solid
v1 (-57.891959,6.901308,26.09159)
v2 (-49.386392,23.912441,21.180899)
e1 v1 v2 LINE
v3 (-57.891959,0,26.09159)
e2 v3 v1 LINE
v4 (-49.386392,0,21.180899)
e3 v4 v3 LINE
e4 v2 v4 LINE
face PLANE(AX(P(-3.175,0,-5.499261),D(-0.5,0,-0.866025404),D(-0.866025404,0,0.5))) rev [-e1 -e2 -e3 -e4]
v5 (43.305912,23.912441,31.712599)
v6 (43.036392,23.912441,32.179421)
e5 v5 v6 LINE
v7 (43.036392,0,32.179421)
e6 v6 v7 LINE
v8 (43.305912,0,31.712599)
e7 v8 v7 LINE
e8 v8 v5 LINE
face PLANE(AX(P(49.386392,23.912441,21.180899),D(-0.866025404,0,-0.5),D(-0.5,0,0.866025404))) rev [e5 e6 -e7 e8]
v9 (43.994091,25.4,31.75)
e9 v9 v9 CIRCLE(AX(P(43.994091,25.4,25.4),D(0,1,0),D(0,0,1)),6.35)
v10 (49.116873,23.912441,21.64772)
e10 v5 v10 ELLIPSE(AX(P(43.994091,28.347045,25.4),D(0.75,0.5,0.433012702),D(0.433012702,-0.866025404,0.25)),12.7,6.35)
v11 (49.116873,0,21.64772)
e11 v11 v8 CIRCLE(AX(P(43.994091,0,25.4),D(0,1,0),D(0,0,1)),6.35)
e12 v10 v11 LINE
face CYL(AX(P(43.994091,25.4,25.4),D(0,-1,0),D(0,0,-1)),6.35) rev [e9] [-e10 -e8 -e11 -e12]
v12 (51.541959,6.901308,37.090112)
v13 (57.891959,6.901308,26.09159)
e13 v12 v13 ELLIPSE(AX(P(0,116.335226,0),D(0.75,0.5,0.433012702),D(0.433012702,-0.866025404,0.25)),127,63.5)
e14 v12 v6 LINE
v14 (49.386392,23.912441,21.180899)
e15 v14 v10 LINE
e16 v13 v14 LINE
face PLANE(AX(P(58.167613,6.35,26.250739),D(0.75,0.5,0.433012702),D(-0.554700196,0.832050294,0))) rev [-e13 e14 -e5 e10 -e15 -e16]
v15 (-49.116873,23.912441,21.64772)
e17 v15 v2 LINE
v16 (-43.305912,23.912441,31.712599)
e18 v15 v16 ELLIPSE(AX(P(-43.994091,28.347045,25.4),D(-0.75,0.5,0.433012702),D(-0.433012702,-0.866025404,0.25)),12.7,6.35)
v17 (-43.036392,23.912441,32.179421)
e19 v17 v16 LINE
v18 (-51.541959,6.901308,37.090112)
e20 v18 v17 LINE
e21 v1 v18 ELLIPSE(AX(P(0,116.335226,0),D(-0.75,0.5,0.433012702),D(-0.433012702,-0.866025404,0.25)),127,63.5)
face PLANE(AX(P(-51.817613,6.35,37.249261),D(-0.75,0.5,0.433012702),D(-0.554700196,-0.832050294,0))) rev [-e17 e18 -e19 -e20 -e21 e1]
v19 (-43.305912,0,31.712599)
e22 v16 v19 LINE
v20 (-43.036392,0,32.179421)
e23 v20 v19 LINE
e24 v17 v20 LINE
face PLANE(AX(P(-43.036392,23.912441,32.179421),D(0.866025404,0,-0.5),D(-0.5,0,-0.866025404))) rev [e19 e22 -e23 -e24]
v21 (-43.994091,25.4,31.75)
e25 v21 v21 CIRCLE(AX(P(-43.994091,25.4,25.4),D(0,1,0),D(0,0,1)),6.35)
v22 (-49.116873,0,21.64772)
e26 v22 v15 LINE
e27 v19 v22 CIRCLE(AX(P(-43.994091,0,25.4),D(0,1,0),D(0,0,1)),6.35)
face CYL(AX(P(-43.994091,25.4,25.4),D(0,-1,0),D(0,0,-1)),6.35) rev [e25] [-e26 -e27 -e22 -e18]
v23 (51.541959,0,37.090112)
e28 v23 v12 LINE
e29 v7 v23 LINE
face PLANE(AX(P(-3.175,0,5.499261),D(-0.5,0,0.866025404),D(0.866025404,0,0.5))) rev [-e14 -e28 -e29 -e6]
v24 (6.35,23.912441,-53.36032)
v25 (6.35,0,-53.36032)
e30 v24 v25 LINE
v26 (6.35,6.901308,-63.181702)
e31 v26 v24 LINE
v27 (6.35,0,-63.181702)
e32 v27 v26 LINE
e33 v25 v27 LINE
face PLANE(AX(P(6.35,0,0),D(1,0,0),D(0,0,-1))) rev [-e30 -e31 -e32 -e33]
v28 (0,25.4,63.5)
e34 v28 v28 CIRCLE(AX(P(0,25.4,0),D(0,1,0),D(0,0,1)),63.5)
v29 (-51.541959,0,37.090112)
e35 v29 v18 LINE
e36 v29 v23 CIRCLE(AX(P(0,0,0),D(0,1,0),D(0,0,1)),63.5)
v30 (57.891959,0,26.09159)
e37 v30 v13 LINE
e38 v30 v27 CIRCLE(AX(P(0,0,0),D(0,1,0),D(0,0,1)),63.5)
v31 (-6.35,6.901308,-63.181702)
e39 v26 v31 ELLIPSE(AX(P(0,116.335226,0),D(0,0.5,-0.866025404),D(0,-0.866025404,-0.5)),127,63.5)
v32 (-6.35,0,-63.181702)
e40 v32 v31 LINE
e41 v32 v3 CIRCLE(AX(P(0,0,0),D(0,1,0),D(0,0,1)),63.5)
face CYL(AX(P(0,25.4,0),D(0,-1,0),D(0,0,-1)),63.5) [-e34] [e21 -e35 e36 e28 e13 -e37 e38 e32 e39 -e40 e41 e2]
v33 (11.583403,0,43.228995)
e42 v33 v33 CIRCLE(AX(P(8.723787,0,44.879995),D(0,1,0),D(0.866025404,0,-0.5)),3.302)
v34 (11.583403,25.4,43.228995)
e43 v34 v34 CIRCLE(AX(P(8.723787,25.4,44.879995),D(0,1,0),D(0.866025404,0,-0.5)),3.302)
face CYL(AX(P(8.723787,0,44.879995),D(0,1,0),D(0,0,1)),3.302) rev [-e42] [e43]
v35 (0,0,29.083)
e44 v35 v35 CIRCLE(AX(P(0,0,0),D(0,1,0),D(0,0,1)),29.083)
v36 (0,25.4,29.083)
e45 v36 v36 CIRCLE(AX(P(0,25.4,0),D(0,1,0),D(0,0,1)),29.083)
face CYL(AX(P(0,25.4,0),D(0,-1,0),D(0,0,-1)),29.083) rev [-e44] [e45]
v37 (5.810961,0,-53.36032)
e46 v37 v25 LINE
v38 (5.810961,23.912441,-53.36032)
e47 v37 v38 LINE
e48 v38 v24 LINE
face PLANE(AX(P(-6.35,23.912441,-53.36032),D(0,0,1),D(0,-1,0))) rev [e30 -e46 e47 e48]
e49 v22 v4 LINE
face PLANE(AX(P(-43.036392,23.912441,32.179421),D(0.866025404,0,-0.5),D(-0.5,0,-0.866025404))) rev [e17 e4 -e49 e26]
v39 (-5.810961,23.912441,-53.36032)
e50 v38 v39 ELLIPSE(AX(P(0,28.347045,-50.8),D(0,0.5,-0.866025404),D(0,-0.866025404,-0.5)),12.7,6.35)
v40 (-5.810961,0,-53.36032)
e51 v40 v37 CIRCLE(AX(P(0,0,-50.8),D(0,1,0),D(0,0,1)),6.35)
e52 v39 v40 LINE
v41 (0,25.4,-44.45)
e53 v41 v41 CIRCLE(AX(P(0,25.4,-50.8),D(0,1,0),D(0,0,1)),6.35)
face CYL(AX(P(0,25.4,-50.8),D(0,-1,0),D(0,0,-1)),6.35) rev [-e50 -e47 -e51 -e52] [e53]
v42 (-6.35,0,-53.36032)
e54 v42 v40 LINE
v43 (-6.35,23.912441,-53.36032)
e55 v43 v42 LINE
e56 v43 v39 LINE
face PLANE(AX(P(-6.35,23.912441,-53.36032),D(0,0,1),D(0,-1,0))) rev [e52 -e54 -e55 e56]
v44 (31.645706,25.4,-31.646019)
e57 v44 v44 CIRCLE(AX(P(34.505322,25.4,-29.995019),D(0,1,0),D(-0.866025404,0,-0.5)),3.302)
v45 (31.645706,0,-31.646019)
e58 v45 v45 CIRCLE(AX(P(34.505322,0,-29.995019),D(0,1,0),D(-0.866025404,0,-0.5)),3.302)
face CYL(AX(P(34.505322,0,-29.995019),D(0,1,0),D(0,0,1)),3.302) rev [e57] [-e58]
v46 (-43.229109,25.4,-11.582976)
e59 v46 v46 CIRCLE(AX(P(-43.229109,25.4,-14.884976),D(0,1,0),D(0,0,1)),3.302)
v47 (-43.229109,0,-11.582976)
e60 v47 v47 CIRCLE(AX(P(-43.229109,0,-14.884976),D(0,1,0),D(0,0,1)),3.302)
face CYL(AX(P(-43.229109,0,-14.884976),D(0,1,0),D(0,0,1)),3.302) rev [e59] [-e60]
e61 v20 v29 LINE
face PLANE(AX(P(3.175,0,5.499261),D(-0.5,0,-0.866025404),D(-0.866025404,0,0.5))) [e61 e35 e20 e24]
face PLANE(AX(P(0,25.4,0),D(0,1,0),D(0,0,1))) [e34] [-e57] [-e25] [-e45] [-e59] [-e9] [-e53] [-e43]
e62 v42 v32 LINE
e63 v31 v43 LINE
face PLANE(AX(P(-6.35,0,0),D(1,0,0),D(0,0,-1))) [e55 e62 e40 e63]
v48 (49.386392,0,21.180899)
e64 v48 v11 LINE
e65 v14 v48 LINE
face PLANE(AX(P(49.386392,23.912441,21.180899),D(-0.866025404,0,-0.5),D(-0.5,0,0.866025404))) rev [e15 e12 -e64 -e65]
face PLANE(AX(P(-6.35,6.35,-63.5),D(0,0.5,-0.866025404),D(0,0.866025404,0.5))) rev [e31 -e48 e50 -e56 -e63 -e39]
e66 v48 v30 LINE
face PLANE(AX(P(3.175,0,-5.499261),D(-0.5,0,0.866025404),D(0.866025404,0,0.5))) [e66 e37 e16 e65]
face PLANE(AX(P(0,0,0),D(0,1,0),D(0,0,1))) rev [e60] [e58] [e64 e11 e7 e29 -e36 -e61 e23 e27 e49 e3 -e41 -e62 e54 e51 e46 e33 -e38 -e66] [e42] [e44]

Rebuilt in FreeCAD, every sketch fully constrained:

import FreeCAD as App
import Part
import Sketcher
from FreeCAD import Vector
Q = App.Units.Quantity

doc = App.newDocument("Part")
body = doc.addObject("PartDesign::Body", "Body")

sketch1 = body.newObject("Sketcher::SketchObject", "Sketch")
sketch1.AttachmentSupport = (doc.getObject("XZ_Plane"), [""])
sketch1.MapMode = "FlatFace"
sketch1.addGeometry(Part.Circle(Vector(0, 0, 0), Vector(0, 0, 1), 63.5), False)
sketch1.addGeometry(Part.Circle(Vector(-43.994091, 25.4, 0), Vector(0, 0, 1), 6.35), False)
sketch1.addGeometry(Part.Circle(Vector(43.994091, 25.4, 0), Vector(0, 0, 1), 6.35), False)
sketch1.addGeometry(Part.Circle(Vector(0, 0, 0), Vector(0, 0, 1), 29.083), False)
sketch1.addGeometry(Part.Circle(Vector(0, -50.8, 0), Vector(0, 0, 1), 6.35), False)
sketch1.addConstraint(Sketcher.Constraint("Coincident", 0, 3, -1, 1))
sketch1.addConstraint(Sketcher.Constraint("Coincident", 3, 3, -1, 1))
sketch1.addConstraint(Sketcher.Constraint("Equal", 1, 2))
sketch1.addConstraint(Sketcher.Constraint("Equal", 2, 4))
sketch1.addConstraint(Sketcher.Constraint("Symmetric", 1, 3, 2, 3, -2))
sketch1.addConstraint(Sketcher.Constraint("PointOnObject", 4, 3, -2))
sketch1.addConstraint(Sketcher.Constraint("Diameter", 0, Q("5 in")))
sketch1.addConstraint(Sketcher.Constraint("Diameter", 1, Q("0.5 in")))
sketch1.addConstraint(Sketcher.Constraint("Diameter", 3, Q("2.29 in")))
sketch1.addConstraint(Sketcher.Constraint("DistanceY", -1, 1, 1, 3, Q("1 in")))
sketch1.addConstraint(Sketcher.Constraint("DistanceY", 4, 3, -1, 1, Q("2 in")))
sketch1.addConstraint(Sketcher.Constraint("DistanceX", 1, 3, -1, 1, 43.994091))
pad1 = body.newObject("PartDesign::Pad", "Pad")
pad1.Profile = sketch1
pad1.Length = Q("1 in")
pad1.Reversed = True

sketch2 = body.newObject("Sketcher::SketchObject", "Sketch001")
sketch2.AttachmentSupport = (doc.getObject("YZ_Plane"), [""])
sketch2.MapMode = "FlatFace"
sketch2.addGeometry(Part.LineSegment(Vector(0, -63.5, 0), Vector(6.35, -63.5, 0)), False)
sketch2.addGeometry(Part.LineSegment(Vector(6.35, -63.5, 0), Vector(23.912441, -53.36032, 0)), False)
sketch2.addGeometry(Part.LineSegment(Vector(23.912441, -53.36032, 0), Vector(0, -53.36032, 0)), False)
sketch2.addGeometry(Part.LineSegment(Vector(0, -53.36032, 0), Vector(0, -63.5, 0)), False)
sketch2.addConstraint(Sketcher.Constraint("Coincident", 0, 2, 1, 1))
sketch2.addConstraint(Sketcher.Constraint("Coincident", 1, 2, 2, 1))
sketch2.addConstraint(Sketcher.Constraint("Coincident", 2, 2, 3, 1))
sketch2.addConstraint(Sketcher.Constraint("Coincident", 3, 2, 0, 1))
sketch2.addConstraint(Sketcher.Constraint("Horizontal", 0))
sketch2.addConstraint(Sketcher.Constraint("Horizontal", 2))
sketch2.addConstraint(Sketcher.Constraint("Vertical", 3))
sketch2.addConstraint(Sketcher.Constraint("PointOnObject", 2, 2, -2))
sketch2.addConstraint(Sketcher.Constraint("Angle", 1, Q("30 deg")))
sketch2.addConstraint(Sketcher.Constraint("DistanceX", 0, 1, 0, 2, Q("0.25 in")))
sketch2.addConstraint(Sketcher.Constraint("DistanceY", 0, 2, -1, 1, Q("2.5 in")))
sketch2.addConstraint(Sketcher.Constraint("DistanceY", 3, 2, 3, 1, Q("0.3992 in")))
pocket1 = body.newObject("PartDesign::Pocket", "Pocket")
pocket1.Profile = sketch2
pocket1.Length = Q("0.5 in")
pocket1.Midplane = True
doc.recompute()

polarpattern = body.newObject("PartDesign::PolarPattern", "PolarPattern")
polarpattern.Originals = [pocket1]
polarpattern.Axis = (doc.getObject("Y_Axis"), [""])
polarpattern.Angle = 360
polarpattern.Occurrences = 3
body.Tip = polarpattern

sketch3 = body.newObject("Sketcher::SketchObject", "Sketch002")
sketch3.AttachmentSupport = (doc.getObject("XZ_Plane"), [""])
sketch3.MapMode = "FlatFace"
sketch3.AttachmentOffset = App.Placement(Vector(0, 0, -1 * 25.4), App.Rotation())
sketch3.addGeometry(Part.Circle(Vector(-43.229109, -14.884976, 0), Vector(0, 0, 1), 3.302), False)
sketch3.addConstraint(Sketcher.Constraint("Diameter", 0, Q("0.26 in")))
sketch3.addConstraint(Sketcher.Constraint("DistanceX", 0, 3, -1, 1, 43.229109))
sketch3.addConstraint(Sketcher.Constraint("DistanceY", 0, 3, -1, 1, 14.884976))
pocket2 = body.newObject("PartDesign::Pocket", "Pocket001")
pocket2.Profile = sketch3
pocket2.Type = "ThroughAll"
pocket2.Reversed = True
doc.recompute()

polarpattern2 = body.newObject("PartDesign::PolarPattern", "PolarPattern001")
polarpattern2.Originals = [pocket2]
polarpattern2.Axis = (doc.getObject("Y_Axis"), [""])
polarpattern2.Angle = 360
polarpattern2.Occurrences = 3
body.Tip = polarpattern2

doc.recompute()
